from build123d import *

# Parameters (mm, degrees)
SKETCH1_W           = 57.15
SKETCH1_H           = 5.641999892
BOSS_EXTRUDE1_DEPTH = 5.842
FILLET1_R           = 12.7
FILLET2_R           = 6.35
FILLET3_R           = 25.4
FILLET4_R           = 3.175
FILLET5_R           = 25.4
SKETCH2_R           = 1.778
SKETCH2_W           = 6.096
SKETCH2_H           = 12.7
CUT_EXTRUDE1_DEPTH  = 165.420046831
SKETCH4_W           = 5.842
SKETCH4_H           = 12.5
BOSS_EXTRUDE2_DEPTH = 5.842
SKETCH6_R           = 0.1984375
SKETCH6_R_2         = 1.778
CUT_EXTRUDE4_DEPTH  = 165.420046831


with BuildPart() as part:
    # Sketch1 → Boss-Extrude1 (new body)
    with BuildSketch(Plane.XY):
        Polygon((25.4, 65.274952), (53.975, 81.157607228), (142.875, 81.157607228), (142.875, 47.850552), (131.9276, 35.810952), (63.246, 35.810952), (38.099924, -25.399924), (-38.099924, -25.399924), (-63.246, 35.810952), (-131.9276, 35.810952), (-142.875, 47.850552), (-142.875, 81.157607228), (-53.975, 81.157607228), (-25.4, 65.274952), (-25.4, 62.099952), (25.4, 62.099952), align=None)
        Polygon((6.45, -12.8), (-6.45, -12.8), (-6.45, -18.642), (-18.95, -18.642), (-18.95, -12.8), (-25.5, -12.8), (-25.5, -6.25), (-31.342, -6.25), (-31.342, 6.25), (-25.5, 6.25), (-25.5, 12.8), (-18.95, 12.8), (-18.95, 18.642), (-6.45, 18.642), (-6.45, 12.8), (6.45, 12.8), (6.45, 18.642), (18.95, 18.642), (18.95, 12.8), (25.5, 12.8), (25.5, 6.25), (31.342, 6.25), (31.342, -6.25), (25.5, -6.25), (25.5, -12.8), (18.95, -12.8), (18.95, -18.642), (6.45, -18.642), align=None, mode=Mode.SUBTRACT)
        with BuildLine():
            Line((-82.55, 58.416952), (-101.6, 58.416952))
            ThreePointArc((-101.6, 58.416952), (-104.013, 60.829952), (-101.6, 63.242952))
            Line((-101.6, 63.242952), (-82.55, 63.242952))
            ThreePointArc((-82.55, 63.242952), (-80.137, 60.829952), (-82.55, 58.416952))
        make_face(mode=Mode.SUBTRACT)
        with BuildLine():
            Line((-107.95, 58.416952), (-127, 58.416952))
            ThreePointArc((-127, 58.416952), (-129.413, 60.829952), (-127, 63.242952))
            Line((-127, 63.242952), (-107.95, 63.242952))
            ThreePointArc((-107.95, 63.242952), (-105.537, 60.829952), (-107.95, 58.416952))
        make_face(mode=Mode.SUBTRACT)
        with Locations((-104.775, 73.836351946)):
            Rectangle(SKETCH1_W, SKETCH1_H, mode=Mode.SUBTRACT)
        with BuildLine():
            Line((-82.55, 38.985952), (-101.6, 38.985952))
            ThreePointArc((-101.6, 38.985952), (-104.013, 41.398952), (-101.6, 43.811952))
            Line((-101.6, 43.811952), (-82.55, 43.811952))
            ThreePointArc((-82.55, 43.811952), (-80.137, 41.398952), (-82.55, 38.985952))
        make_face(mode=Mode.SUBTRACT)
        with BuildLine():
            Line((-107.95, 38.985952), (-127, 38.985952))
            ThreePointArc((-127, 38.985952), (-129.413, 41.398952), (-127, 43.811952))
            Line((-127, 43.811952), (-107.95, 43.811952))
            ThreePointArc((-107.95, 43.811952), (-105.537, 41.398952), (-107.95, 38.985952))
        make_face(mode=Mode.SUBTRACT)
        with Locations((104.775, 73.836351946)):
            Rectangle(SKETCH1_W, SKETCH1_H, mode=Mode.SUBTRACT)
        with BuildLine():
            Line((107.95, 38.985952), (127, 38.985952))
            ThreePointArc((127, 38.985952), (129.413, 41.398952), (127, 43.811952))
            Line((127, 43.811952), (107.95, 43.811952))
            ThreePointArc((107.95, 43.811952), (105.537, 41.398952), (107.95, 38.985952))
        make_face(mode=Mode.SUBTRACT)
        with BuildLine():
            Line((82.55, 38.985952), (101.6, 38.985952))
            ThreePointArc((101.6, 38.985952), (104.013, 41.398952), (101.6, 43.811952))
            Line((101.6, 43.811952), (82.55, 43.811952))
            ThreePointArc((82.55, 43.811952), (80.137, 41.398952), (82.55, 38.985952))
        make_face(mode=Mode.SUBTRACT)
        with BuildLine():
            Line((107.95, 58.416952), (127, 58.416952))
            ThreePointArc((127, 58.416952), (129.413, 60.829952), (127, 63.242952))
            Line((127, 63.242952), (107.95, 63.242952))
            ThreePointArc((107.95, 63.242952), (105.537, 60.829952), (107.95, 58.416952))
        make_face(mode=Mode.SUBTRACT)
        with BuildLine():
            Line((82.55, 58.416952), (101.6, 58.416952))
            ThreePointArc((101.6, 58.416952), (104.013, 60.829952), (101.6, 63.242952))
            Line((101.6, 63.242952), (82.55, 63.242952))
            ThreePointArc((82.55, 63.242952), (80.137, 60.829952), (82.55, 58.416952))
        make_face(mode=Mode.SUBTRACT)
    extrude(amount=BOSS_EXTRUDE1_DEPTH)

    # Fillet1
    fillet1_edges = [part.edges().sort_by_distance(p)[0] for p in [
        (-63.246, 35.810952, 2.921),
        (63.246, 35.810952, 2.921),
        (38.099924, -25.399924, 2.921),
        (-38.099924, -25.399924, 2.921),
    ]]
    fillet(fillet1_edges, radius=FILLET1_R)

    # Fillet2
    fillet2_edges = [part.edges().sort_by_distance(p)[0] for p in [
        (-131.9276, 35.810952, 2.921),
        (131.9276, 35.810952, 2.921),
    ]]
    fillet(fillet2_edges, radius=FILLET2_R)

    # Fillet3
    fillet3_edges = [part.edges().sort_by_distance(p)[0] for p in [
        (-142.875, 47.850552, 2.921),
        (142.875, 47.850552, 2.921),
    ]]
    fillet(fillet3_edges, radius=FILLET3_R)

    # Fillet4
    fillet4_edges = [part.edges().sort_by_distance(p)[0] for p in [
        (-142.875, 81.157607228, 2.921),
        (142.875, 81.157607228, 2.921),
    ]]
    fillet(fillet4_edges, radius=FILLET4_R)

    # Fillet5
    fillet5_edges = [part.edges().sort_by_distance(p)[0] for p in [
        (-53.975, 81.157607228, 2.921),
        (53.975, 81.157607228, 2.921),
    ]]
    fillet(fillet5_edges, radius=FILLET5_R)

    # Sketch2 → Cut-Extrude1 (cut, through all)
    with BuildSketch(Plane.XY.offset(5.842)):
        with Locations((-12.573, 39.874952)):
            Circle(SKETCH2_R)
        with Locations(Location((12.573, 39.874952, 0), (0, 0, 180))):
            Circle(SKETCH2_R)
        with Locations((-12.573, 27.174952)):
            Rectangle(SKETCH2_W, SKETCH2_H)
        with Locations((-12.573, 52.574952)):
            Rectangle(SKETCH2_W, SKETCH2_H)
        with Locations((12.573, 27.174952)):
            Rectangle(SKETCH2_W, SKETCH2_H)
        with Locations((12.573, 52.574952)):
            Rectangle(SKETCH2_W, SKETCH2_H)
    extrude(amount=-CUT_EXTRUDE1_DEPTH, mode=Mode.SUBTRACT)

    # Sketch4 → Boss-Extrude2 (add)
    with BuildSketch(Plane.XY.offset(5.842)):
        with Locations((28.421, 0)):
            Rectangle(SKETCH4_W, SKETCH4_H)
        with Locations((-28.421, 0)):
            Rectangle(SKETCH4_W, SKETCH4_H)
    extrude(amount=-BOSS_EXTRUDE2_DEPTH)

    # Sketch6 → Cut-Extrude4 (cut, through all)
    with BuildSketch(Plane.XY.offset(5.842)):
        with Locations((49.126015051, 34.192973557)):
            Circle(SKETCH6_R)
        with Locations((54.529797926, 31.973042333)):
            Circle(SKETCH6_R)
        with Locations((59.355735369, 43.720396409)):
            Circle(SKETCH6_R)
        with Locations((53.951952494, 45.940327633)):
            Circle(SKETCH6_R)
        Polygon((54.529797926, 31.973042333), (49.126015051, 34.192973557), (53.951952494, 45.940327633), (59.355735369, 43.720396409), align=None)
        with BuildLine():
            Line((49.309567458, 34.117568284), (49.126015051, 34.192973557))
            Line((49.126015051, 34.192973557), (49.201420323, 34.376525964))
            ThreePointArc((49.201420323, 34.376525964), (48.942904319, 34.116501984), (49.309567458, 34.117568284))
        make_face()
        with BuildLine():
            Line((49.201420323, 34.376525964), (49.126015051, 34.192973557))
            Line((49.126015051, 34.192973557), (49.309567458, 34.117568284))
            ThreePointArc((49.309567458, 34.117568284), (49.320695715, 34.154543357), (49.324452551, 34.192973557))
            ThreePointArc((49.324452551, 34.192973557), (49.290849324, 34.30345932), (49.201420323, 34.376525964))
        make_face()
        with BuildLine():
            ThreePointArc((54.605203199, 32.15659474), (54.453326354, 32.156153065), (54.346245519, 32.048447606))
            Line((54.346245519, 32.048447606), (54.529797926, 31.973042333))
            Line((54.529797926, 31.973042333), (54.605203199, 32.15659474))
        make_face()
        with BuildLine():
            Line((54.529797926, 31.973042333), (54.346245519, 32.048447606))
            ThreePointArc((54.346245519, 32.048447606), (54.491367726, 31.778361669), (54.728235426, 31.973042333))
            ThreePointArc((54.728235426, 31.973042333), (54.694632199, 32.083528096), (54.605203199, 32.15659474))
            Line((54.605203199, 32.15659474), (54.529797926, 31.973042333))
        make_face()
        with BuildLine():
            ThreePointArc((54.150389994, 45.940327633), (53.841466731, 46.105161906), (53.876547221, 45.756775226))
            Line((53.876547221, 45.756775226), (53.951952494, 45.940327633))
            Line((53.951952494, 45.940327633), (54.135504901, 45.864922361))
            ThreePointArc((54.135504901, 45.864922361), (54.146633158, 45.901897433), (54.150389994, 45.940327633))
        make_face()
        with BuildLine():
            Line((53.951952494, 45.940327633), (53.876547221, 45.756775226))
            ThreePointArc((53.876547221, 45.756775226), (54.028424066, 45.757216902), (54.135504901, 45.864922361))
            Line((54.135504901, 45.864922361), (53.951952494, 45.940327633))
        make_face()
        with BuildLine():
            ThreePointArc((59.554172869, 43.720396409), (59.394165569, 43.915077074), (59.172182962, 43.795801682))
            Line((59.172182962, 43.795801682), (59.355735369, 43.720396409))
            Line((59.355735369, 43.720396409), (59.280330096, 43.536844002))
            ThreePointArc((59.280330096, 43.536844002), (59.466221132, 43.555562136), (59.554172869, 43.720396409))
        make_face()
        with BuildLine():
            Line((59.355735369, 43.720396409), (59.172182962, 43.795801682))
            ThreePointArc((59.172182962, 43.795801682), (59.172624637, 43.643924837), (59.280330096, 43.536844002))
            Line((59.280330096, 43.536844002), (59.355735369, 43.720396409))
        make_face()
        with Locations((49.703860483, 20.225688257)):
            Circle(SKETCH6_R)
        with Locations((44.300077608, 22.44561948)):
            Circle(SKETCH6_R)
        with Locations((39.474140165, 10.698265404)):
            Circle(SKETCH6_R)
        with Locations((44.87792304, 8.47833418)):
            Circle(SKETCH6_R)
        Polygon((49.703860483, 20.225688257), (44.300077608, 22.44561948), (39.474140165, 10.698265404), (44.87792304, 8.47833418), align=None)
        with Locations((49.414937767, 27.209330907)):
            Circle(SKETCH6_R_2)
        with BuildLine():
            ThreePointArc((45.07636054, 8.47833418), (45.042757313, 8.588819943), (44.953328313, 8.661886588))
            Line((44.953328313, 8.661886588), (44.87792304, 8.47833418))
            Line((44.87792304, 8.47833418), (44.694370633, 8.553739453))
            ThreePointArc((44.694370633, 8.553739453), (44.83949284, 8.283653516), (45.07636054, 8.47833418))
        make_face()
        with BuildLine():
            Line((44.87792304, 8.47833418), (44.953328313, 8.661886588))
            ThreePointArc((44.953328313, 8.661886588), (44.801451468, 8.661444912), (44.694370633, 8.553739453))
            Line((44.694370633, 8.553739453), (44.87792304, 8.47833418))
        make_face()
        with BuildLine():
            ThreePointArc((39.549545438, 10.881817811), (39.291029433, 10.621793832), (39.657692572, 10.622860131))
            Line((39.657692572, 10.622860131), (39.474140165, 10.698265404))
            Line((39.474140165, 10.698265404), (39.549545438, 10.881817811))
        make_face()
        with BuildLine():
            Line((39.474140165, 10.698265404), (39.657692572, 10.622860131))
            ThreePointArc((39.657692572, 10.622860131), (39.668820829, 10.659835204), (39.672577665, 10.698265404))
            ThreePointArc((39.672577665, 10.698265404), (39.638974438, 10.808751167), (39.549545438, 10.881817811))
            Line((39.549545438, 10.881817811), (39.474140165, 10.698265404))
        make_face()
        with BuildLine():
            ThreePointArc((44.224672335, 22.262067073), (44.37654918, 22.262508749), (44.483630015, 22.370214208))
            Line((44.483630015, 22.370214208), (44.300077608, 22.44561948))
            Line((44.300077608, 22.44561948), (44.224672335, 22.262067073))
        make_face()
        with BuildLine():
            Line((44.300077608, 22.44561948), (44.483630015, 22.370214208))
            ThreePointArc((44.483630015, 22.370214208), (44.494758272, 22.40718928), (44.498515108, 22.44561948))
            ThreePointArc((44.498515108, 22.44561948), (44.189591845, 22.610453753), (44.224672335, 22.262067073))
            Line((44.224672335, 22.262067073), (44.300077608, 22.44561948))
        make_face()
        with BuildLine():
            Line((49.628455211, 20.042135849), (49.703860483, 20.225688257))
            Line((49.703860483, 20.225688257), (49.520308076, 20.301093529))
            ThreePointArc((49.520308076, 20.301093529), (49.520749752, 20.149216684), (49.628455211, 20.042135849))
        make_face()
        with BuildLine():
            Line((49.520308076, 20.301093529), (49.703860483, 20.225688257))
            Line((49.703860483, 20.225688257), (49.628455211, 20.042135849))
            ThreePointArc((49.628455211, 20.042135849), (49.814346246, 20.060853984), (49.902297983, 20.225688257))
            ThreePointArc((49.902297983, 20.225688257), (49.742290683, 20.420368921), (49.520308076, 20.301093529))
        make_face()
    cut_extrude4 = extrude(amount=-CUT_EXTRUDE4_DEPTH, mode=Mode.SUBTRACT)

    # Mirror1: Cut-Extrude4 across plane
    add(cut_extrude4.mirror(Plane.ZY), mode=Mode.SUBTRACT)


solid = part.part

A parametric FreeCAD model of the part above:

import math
import FreeCAD as App
import Part
import Sketcher
Q = App.Units.Quantity


def edges_at(feature, points):
    """Names of the edges that pass closest to the given points."""
    edges = feature.Shape.Edges
    near = lambda p: min(range(len(edges)), key=lambda i: edges[i].distToShape(Part.Vertex(*p))[0])
    return sorted({f"Edge{near(p) + 1}" for p in points})

doc = App.newDocument("Part")
params = doc.addObject("Spreadsheet::Sheet", "Params")
for row, (alias, value) in enumerate([
    ("sketch1_width", "2 in"),
    ("sketch1_width2", "3.5 in"),
    ("sketch1_radius", "0.095 in"),
    ("sketch1_width3", "0.23 in"),
    ("sketch1_width4", "0.75 in"),
    ("pad1_length", "0.23 in"),
    ("fillet_radius", "0.5 in"),
    ("fillet2_radius", "0.25 in"),
    ("fillet3_radius", "1 in"),
    ("fillet4_radius", "0.125 in"),
    ("fillet5_radius", "1 in"),
    ("sketch2_diameter", "0.14 in"),
    ("sketch2_height", "0.5 in"),
    ("sketch2_width", "0.24 in"),
    ("sketch3_width", "0.23 in"),
    ("pad2_length", "0.23 in"),
    ("sketch4_diameter", "0.14 in"),
    ("sketch4_length", "0.484375 in"),
], start=1):
    params.set(f"A{row}", alias)
    params.set(f"B{row}", "=" + value)
    params.setAlias(f"B{row}", alias)

body = doc.addObject("PartDesign::Body", "Body")

sketch1 = body.newObject("Sketcher::SketchObject", "Sketch")
sketch1.AttachmentSupport = (doc.getObject("XY_Plane"), [""])
sketch1.MapMode = "FlatFace"
sketch1.addGeometry([
    Part.LineSegment(App.Vector(54, 81.2, 0), App.Vector(25.4, 65.3, 0)),
    Part.LineSegment(App.Vector(25.4, 65.3, 0), App.Vector(25.4, 62.1, 0)),
    Part.LineSegment(App.Vector(25.4, 62.1, 0), App.Vector(-25.4, 62.1, 0)),
    Part.LineSegment(App.Vector(-25.4, 62.1, 0), App.Vector(-25.4, 65.3, 0)),
    Part.LineSegment(App.Vector(-25.4, 65.3, 0), App.Vector(-54, 81.2, 0)),
    Part.LineSegment(App.Vector(-54, 81.2, 0), App.Vector(-142.9, 81.2, 0)),
    Part.LineSegment(App.Vector(-142.9, 81.2, 0), App.Vector(-142.9, 47.9, 0)),
    Part.LineSegment(App.Vector(-142.9, 47.9, 0), App.Vector(-131.9, 35.8, 0)),
    Part.LineSegment(App.Vector(-131.9, 35.8, 0), App.Vector(-63.2, 35.8, 0)),
    Part.LineSegment(App.Vector(-63.2, 35.8, 0), App.Vector(-38.1, -25.4, 0)),
    Part.LineSegment(App.Vector(-38.1, -25.4, 0), App.Vector(38.1, -25.4, 0)),
    Part.LineSegment(App.Vector(38.1, -25.4, 0), App.Vector(63.2, 35.8, 0)),
    Part.LineSegment(App.Vector(63.2, 35.8, 0), App.Vector(131.9, 35.8, 0)),
    Part.LineSegment(App.Vector(131.9, 35.8, 0), App.Vector(142.9, 47.9, 0)),
    Part.LineSegment(App.Vector(142.9, 47.9, 0), App.Vector(142.9, 81.2, 0)),
    Part.LineSegment(App.Vector(142.9, 81.2, 0), App.Vector(54, 81.2, 0)),
    Part.LineSegment(App.Vector(6.5, -12.8, 0), App.Vector(-6.5, -12.8, 0)),
    Part.LineSegment(App.Vector(-6.5, -12.8, 0), App.Vector(-6.5, -18.6, 0)),
    Part.LineSegment(App.Vector(-6.5, -18.6, 0), App.Vector(-18.9, -18.6, 0)),
    Part.LineSegment(App.Vector(-18.9, -18.6, 0), App.Vector(-18.9, -12.8, 0)),
    Part.LineSegment(App.Vector(-18.9, -12.8, 0), App.Vector(-25.5, -12.8, 0)),
    Part.LineSegment(App.Vector(-25.5, -12.8, 0), App.Vector(-25.5, -6.2, 0)),
    Part.LineSegment(App.Vector(-25.5, -6.2, 0), App.Vector(-31.3, -6.2, 0)),
    Part.LineSegment(App.Vector(-31.3, -6.2, 0), App.Vector(-31.3, 6.2, 0)),
    Part.LineSegment(App.Vector(-31.3, 6.2, 0), App.Vector(-25.5, 6.2, 0)),
    Part.LineSegment(App.Vector(-25.5, 6.2, 0), App.Vector(-25.5, 12.8, 0)),
    Part.LineSegment(App.Vector(-25.5, 12.8, 0), App.Vector(-18.9, 12.8, 0)),
    Part.LineSegment(App.Vector(-18.9, 12.8, 0), App.Vector(-18.9, 18.6, 0)),
    Part.LineSegment(App.Vector(-18.9, 18.6, 0), App.Vector(-6.5, 18.6, 0)),
    Part.LineSegment(App.Vector(-6.5, 18.6, 0), App.Vector(-6.5, 12.8, 0)),
    Part.LineSegment(App.Vector(-6.5, 12.8, 0), App.Vector(6.5, 12.8, 0)),
    Part.LineSegment(App.Vector(6.5, 12.8, 0), App.Vector(6.5, 18.6, 0)),
    Part.LineSegment(App.Vector(6.5, 18.6, 0), App.Vector(18.9, 18.6, 0)),
    Part.LineSegment(App.Vector(18.9, 18.6, 0), App.Vector(18.9, 12.8, 0)),
    Part.LineSegment(App.Vector(18.9, 12.8, 0), App.Vector(25.5, 12.8, 0)),
    Part.LineSegment(App.Vector(25.5, 12.8, 0), App.Vector(25.5, 6.2, 0)),
    Part.LineSegment(App.Vector(25.5, 6.2, 0), App.Vector(31.3, 6.2, 0)),
    Part.LineSegment(App.Vector(31.3, 6.2, 0), App.Vector(31.3, -6.2, 0)),
    Part.LineSegment(App.Vector(31.3, -6.2, 0), App.Vector(25.5, -6.2, 0)),
    Part.LineSegment(App.Vector(25.5, -6.2, 0), App.Vector(25.5, -12.8, 0)),
    Part.LineSegment(App.Vector(25.5, -12.8, 0), App.Vector(18.9, -12.8, 0)),
    Part.LineSegment(App.Vector(18.9, -12.8, 0), App.Vector(18.9, -18.6, 0)),
    Part.LineSegment(App.Vector(18.9, -18.6, 0), App.Vector(6.5, -18.6, 0)),
    Part.LineSegment(App.Vector(6.5, -18.6, 0), App.Vector(6.5, -12.8, 0)),
    Part.ArcOfCircle(Part.Circle(App.Vector(108, 41.4, 0), App.Vector(0, 0, 1), 2.4), math.radians(90), math.radians(270)),
    Part.LineSegment(App.Vector(108, 43.8, 0), App.Vector(127, 43.8, 0)),
    Part.ArcOfCircle(Part.Circle(App.Vector(127, 41.4, 0), App.Vector(0, 0, 1), 2.4), math.radians(-90), math.radians(90)),
    Part.LineSegment(App.Vector(127, 39, 0), App.Vector(108, 39, 0)),
    Part.ArcOfCircle(Part.Circle(App.Vector(82.5, 41.4, 0), App.Vector(0, 0, 1), 2.4), math.radians(90), math.radians(270)),
    Part.LineSegment(App.Vector(82.5, 43.8, 0), App.Vector(101.6, 43.8, 0)),
    Part.ArcOfCircle(Part.Circle(App.Vector(101.6, 41.4, 0), App.Vector(0, 0, 1), 2.4), math.radians(-90), math.radians(90)),
    Part.LineSegment(App.Vector(101.6, 39, 0), App.Vector(82.5, 39, 0)),
    Part.ArcOfCircle(Part.Circle(App.Vector(108, 60.8, 0), App.Vector(0, 0, 1), 2.4), math.radians(90), math.radians(270)),
    Part.LineSegment(App.Vector(108, 63.2, 0), App.Vector(127, 63.2, 0)),
    Part.ArcOfCircle(Part.Circle(App.Vector(127, 60.8, 0), App.Vector(0, 0, 1), 2.4), math.radians(-90), math.radians(90)),
    Part.LineSegment(App.Vector(127, 58.4, 0), App.Vector(108, 58.4, 0)),
    Part.ArcOfCircle(Part.Circle(App.Vector(82.5, 60.8, 0), App.Vector(0, 0, 1), 2.4), math.radians(90), math.radians(270)),
    Part.LineSegment(App.Vector(82.5, 63.2, 0), App.Vector(101.6, 63.2, 0)),
    Part.ArcOfCircle(Part.Circle(App.Vector(101.6, 60.8, 0), App.Vector(0, 0, 1), 2.4), math.radians(-90), math.radians(90)),
    Part.LineSegment(App.Vector(101.6, 58.4, 0), App.Vector(82.5, 58.4, 0)),
    Part.LineSegment(App.Vector(76.2, 71, 0), App.Vector(76.2, 76.7, 0)),
    Part.LineSegment(App.Vector(76.2, 76.7, 0), App.Vector(133.3, 76.7, 0)),
    Part.LineSegment(App.Vector(133.3, 76.7, 0), App.Vector(133.3, 71, 0)),
    Part.LineSegment(App.Vector(133.3, 71, 0), App.Vector(76.2, 71, 0)),
    Part.LineSegment(App.Vector(-82.5, 39, 0), App.Vector(-101.6, 39, 0)),
    Part.ArcOfCircle(Part.Circle(App.Vector(-101.6, 41.4, 0), App.Vector(0, 0, 1), 2.4), math.radians(90), math.radians(270)),
    Part.LineSegment(App.Vector(-101.6, 43.8, 0), App.Vector(-82.5, 43.8, 0)),
    Part.ArcOfCircle(Part.Circle(App.Vector(-82.5, 41.4, 0), App.Vector(0, 0, 1), 2.4), math.radians(-90), math.radians(90)),
    Part.LineSegment(App.Vector(-108, 39, 0), App.Vector(-127, 39, 0)),
    Part.ArcOfCircle(Part.Circle(App.Vector(-127, 41.4, 0), App.Vector(0, 0, 1), 2.4), math.radians(90), math.radians(270)),
    Part.LineSegment(App.Vector(-127, 43.8, 0), App.Vector(-108, 43.8, 0)),
    Part.ArcOfCircle(Part.Circle(App.Vector(-108, 41.4, 0), App.Vector(0, 0, 1), 2.4), math.radians(-90), math.radians(90)),
    Part.LineSegment(App.Vector(-82.5, 58.4, 0), App.Vector(-101.6, 58.4, 0)),
    Part.ArcOfCircle(Part.Circle(App.Vector(-101.6, 60.8, 0), App.Vector(0, 0, 1), 2.4), math.radians(90), math.radians(270)),
    Part.LineSegment(App.Vector(-101.6, 63.2, 0), App.Vector(-82.5, 63.2, 0)),
    Part.ArcOfCircle(Part.Circle(App.Vector(-82.5, 60.8, 0), App.Vector(0, 0, 1), 2.4), math.radians(-90), math.radians(90)),
    Part.LineSegment(App.Vector(-108, 58.4, 0), App.Vector(-127, 58.4, 0)),
    Part.ArcOfCircle(Part.Circle(App.Vector(-127, 60.8, 0), App.Vector(0, 0, 1), 2.4), math.radians(90), math.radians(270)),
    Part.LineSegment(App.Vector(-127, 63.2, 0), App.Vector(-108, 63.2, 0)),
    Part.ArcOfCircle(Part.Circle(App.Vector(-108, 60.8, 0), App.Vector(0, 0, 1), 2.4), math.radians(-90), math.radians(90)),
    Part.LineSegment(App.Vector(-133.3, 71, 0), App.Vector(-133.3, 76.7, 0)),
    Part.LineSegment(App.Vector(-133.3, 76.7, 0), App.Vector(-76.2, 76.7, 0)),
    Part.LineSegment(App.Vector(-76.2, 76.7, 0), App.Vector(-76.2, 71, 0)),
    Part.LineSegment(App.Vector(-76.2, 71, 0), App.Vector(-133.3, 71, 0)),
], False)
sketch1.addConstraint([
    Sketcher.Constraint("Coincident", 0, 2, 1, 1),
    Sketcher.Constraint("Coincident", 1, 2, 2, 1),
    Sketcher.Constraint("Coincident", 2, 2, 3, 1),
    Sketcher.Constraint("Coincident", 3, 2, 4, 1),
    Sketcher.Constraint("Coincident", 4, 2, 5, 1),
    Sketcher.Constraint("Coincident", 5, 2, 6, 1),
    Sketcher.Constraint("Coincident", 6, 2, 7, 1),
    Sketcher.Constraint("Coincident", 7, 2, 8, 1),
    Sketcher.Constraint("Coincident", 8, 2, 9, 1),
    Sketcher.Constraint("Coincident", 9, 2, 10, 1),
    Sketcher.Constraint("Coincident", 10, 2, 11, 1),
    Sketcher.Constraint("Coincident", 11, 2, 12, 1),
    Sketcher.Constraint("Coincident", 12, 2, 13, 1),
    Sketcher.Constraint("Coincident", 13, 2, 14, 1),
    Sketcher.Constraint("Coincident", 14, 2, 15, 1),
    Sketcher.Constraint("Coincident", 15, 2, 0, 1),
    Sketcher.Constraint("Coincident", 16, 2, 17, 1),
    Sketcher.Constraint("Coincident", 17, 2, 18, 1),
    Sketcher.Constraint("Coincident", 18, 2, 19, 1),
    Sketcher.Constraint("Coincident", 19, 2, 20, 1),
    Sketcher.Constraint("Coincident", 20, 2, 21, 1),
    Sketcher.Constraint("Coincident", 21, 2, 22, 1),
    Sketcher.Constraint("Coincident", 22, 2, 23, 1),
    Sketcher.Constraint("Coincident", 23, 2, 24, 1),
    Sketcher.Constraint("Coincident", 24, 2, 25, 1),
    Sketcher.Constraint("Coincident", 25, 2, 26, 1),
    Sketcher.Constraint("Coincident", 26, 2, 27, 1),
    Sketcher.Constraint("Coincident", 27, 2, 28, 1),
    Sketcher.Constraint("Coincident", 28, 2, 29, 1),
    Sketcher.Constraint("Coincident", 29, 2, 30, 1),
    Sketcher.Constraint("Coincident", 30, 2, 31, 1),
    Sketcher.Constraint("Coincident", 31, 2, 32, 1),
    Sketcher.Constraint("Coincident", 32, 2, 33, 1),
    Sketcher.Constraint("Coincident", 33, 2, 34, 1),
    Sketcher.Constraint("Coincident", 34, 2, 35, 1),
    Sketcher.Constraint("Coincident", 35, 2, 36, 1),
    Sketcher.Constraint("Coincident", 36, 2, 37, 1),
    Sketcher.Constraint("Coincident", 37, 2, 38, 1),
    Sketcher.Constraint("Coincident", 38, 2, 39, 1),
    Sketcher.Constraint("Coincident", 39, 2, 40, 1),
    Sketcher.Constraint("Coincident", 40, 2, 41, 1),
    Sketcher.Constraint("Coincident", 41, 2, 42, 1),
    Sketcher.Constraint("Coincident", 42, 2, 43, 1),
    Sketcher.Constraint("Coincident", 43, 2, 16, 1),
    Sketcher.Constraint("Tangent", 44, 1, 45, 1),
    Sketcher.Constraint("Tangent", 45, 2, 46, 2),
    Sketcher.Constraint("Tangent", 46, 1, 47, 1),
    Sketcher.Constraint("Tangent", 47, 2, 44, 2),
    Sketcher.Constraint("Tangent", 48, 1, 49, 1),
    Sketcher.Constraint("Tangent", 49, 2, 50, 2),
    Sketcher.Constraint("Tangent", 50, 1, 51, 1),
    Sketcher.Constraint("Tangent", 51, 2, 48, 2),
    Sketcher.Constraint("Tangent", 52, 1, 53, 1),
    Sketcher.Constraint("Tangent", 53, 2, 54, 2),
    Sketcher.Constraint("Tangent", 54, 1, 55, 1),
    Sketcher.Constraint("Tangent", 55, 2, 52, 2),
    Sketcher.Constraint("Tangent", 56, 1, 57, 1),
    Sketcher.Constraint("Tangent", 57, 2, 58, 2),
    Sketcher.Constraint("Tangent", 58, 1, 59, 1),
    Sketcher.Constraint("Tangent", 59, 2, 56, 2),
    Sketcher.Constraint("Coincident", 60, 2, 61, 1),
    Sketcher.Constraint("Coincident", 61, 2, 62, 1),
    Sketcher.Constraint("Coincident", 62, 2, 63, 1),
    Sketcher.Constraint("Coincident", 63, 2, 60, 1),
    Sketcher.Constraint("Tangent", 64, 2, 65, 2),
    Sketcher.Constraint("Tangent", 65, 1, 66, 1),
    Sketcher.Constraint("Tangent", 66, 2, 67, 2),
    Sketcher.Constraint("Tangent", 67, 1, 64, 1),
    Sketcher.Constraint("Tangent", 68, 2, 69, 2),
    Sketcher.Constraint("Tangent", 69, 1, 70, 1),
    Sketcher.Constraint("Tangent", 70, 2, 71, 2),
    Sketcher.Constraint("Tangent", 71, 1, 68, 1),
    Sketcher.Constraint("Tangent", 72, 2, 73, 2),
    Sketcher.Constraint("Tangent", 73, 1, 74, 1),
    Sketcher.Constraint("Tangent", 74, 2, 75, 2),
    Sketcher.Constraint("Tangent", 75, 1, 72, 1),
    Sketcher.Constraint("Tangent", 76, 2, 77, 2),
    Sketcher.Constraint("Tangent", 77, 1, 78, 1),
    Sketcher.Constraint("Tangent", 78, 2, 79, 2),
    Sketcher.Constraint("Tangent", 79, 1, 76, 1),
    Sketcher.Constraint("Coincident", 80, 2, 81, 1),
    Sketcher.Constraint("Coincident", 81, 2, 82, 1),
    Sketcher.Constraint("Coincident", 82, 2, 83, 1),
    Sketcher.Constraint("Coincident", 83, 2, 80, 1),
    Sketcher.Constraint("Vertical", 1),
    Sketcher.Constraint("Horizontal", 2),
    Sketcher.Constraint("Vertical", 3),
    Sketcher.Constraint("Horizontal", 5),
    Sketcher.Constraint("Vertical", 6),
    Sketcher.Constraint("Horizontal", 8),
    Sketcher.Constraint("Horizontal", 10),
    Sketcher.Constraint("Horizontal", 12),
    Sketcher.Constraint("Vertical", 14),
    Sketcher.Constraint("Horizontal", 15),
    Sketcher.Constraint("Horizontal", 16),
    Sketcher.Constraint("Vertical", 17),
    Sketcher.Constraint("Horizontal", 18),
    Sketcher.Constraint("Vertical", 19),
    Sketcher.Constraint("Horizontal", 20),
    Sketcher.Constraint("Vertical", 21),
    Sketcher.Constraint("Horizontal", 22),
    Sketcher.Constraint("Vertical", 23),
    Sketcher.Constraint("Horizontal", 24),
    Sketcher.Constraint("Vertical", 25),
    Sketcher.Constraint("Horizontal", 26),
    Sketcher.Constraint("Vertical", 27),
    Sketcher.Constraint("Horizontal", 28),
    Sketcher.Constraint("Vertical", 29),
    Sketcher.Constraint("Horizontal", 30),
    Sketcher.Constraint("Vertical", 31),
    Sketcher.Constraint("Horizontal", 32),
    Sketcher.Constraint("Vertical", 33),
    Sketcher.Constraint("Horizontal", 34),
    Sketcher.Constraint("Vertical", 35),
    Sketcher.Constraint("Horizontal", 36),
    Sketcher.Constraint("Vertical", 37),
    Sketcher.Constraint("Horizontal", 38),
    Sketcher.Constraint("Vertical", 39),
    Sketcher.Constraint("Horizontal", 40),
    Sketcher.Constraint("Vertical", 41),
    Sketcher.Constraint("Horizontal", 42),
    Sketcher.Constraint("Vertical", 43),
    Sketcher.Constraint("Horizontal", 45),
    Sketcher.Constraint("Horizontal", 47),
    Sketcher.Constraint("Horizontal", 49),
    Sketcher.Constraint("Horizontal", 51),
    Sketcher.Constraint("Horizontal", 53),
    Sketcher.Constraint("Horizontal", 55),
    Sketcher.Constraint("Horizontal", 57),
    Sketcher.Constraint("Horizontal", 59),
    Sketcher.Constraint("Vertical", 60),
    Sketcher.Constraint("Horizontal", 61),
    Sketcher.Constraint("Vertical", 62),
    Sketcher.Constraint("Horizontal", 63),
    Sketcher.Constraint("Horizontal", 64),
    Sketcher.Constraint("Horizontal", 66),
    Sketcher.Constraint("Horizontal", 68),
    Sketcher.Constraint("Horizontal", 70),
    Sketcher.Constraint("Horizontal", 72),
    Sketcher.Constraint("Horizontal", 74),
    Sketcher.Constraint("Horizontal", 76),
    Sketcher.Constraint("Horizontal", 78),
    Sketcher.Constraint("Vertical", 80),
    Sketcher.Constraint("Horizontal", 81),
    Sketcher.Constraint("Vertical", 82),
    Sketcher.Constraint("Horizontal", 83),
    Sketcher.Constraint("Equal", 46, 48),
    Sketcher.Constraint("Equal", 50, 52),
    Sketcher.Constraint("Equal", 54, 56),
    Sketcher.Constraint("Equal", 58, 65),
    Sketcher.Constraint("Equal", 67, 69),
    Sketcher.Constraint("Equal", 71, 73),
    Sketcher.Constraint("Equal", 75, 77),
    Sketcher.Constraint("Symmetric", 16, 2, 30, 2, -1, 1),
    Sketcher.Constraint("Symmetric", 18, 2, 32, 2, -1, 1),
    Sketcher.Constraint("Symmetric", 20, 2, 34, 2, -1, 1),
    Sketcher.Constraint("Symmetric", 22, 2, 36, 2, -1, 1),
    Sketcher.Constraint("Symmetric", 24, 2, 38, 2, -1, 1),
    Sketcher.Constraint("Symmetric", 26, 2, 40, 2, -1, 1),
    Sketcher.Constraint("Symmetric", 28, 2, 42, 2, -1, 1),
    Sketcher.Constraint("Symmetric", 50, 3, 65, 3, -2),
    Sketcher.Constraint("Symmetric", 46, 3, 69, 3, -2),
    Sketcher.Constraint("Symmetric", 58, 3, 73, 3, -2),
    Sketcher.Constraint("Symmetric", 54, 3, 77, 3, -2),
    Sketcher.Constraint("Symmetric", 0, 2, 3, 2, -2),
    Sketcher.Constraint("Symmetric", 8, 2, 11, 2, -2),
    Sketcher.Constraint("Symmetric", 6, 2, 13, 2, -2),
    Sketcher.Constraint("Symmetric", 4, 2, 15, 2, -2),
    Sketcher.Constraint("Symmetric", 28, 2, 31, 2, -2),
    Sketcher.Constraint("Symmetric", 26, 2, 33, 2, -2),
    Sketcher.Constraint("Symmetric", 24, 2, 35, 2, -2),
    Sketcher.Constraint("Symmetric", 61, 2, 80, 2, -2),
    Sketcher.Constraint("Symmetric", 63, 2, 82, 2, -2),
    Sketcher.Constraint("Horizontal", 46, 3, 48, 3),
    Sketcher.Constraint("Horizontal", 54, 3, 56, 3),
    Sketcher.Constraint("Horizontal", 16, 2, 19, 2),
    Sketcher.Constraint("Vertical", 44, 3, 52, 3),
    Sketcher.Constraint("Vertical", 46, 3, 54, 3),
    Sketcher.Constraint("Vertical", 48, 3, 56, 3),
    Sketcher.Constraint("Vertical", 50, 3, 58, 3),
    Sketcher.Constraint("Vertical", 67, 3, 75, 3),
    Sketcher.Constraint("Vertical", 71, 3, 79, 3),
    Sketcher.Constraint("Equal", 8, 12),
    Sketcher.Constraint("Equal", 47, 49),
    Sketcher.Constraint("Equal", 59, 64),
    Sketcher.Constraint("Equal", 66, 68),
    Sketcher.Constraint("Equal", 38, 17),
    Sketcher.Constraint("Equal", 40, 21),
    Sketcher.Constraint("Equal", 42, 23),
    Sketcher.Constraint("Equal", 9, 11),
    Sketcher.Constraint("DistanceX", 2, 2, 2, 1, Q("2 in")),
    Sketcher.Constraint("DistanceX", 5, 2, 5, 1, Q("3.5 in")),
    Sketcher.Constraint("DistanceX", -1, 1, 46, 3, Q("5 in")),
    Sketcher.Constraint("DistanceX", -1, 1, 50, 3, Q("4 in")),
    Sketcher.Constraint("DistanceX", -1, 1, 60, 2, Q("3 in")),
    Sketcher.Constraint("Radius", 44, Q("0.095 in")),
    Sketcher.Constraint("DistanceX", 22, 2, 22, 1, Q("0.23 in")),
    Sketcher.Constraint("DistanceX", 45, 1, 45, 2, Q("0.75 in")),
    Sketcher.Constraint("DistanceX", 61, 1, 61, 2, Q("2.25 in")),
    Sketcher.Constraint("DistanceX", 8, 1, 8, 2, Q("2.704 in")),
    Sketcher.Constraint("DistanceY", 1, 2, 1, 1, Q("0.125 in")),
    Sketcher.Constraint("DistanceX", 8, 2, -1, 1, Q("2.49 in")),
    Sketcher.Constraint("DistanceX", 4, 2, -1, 1, Q("2.125 in")),
    Sketcher.Constraint("Distance", 0, Q("1.2871002 in")),
    Sketcher.Constraint("DistanceX", 16, 2, 16, 1, 12.9),
    Sketcher.Constraint("DistanceX", 18, 2, 18, 1, 12.5),
    Sketcher.Constraint("DistanceX", 20, 2, 20, 1, 6.55),
    Sketcher.Constraint("DistanceY", 60, 1, 60, 2, 5.642),
    Sketcher.Constraint("Distance", 7, 16.272601),
    Sketcher.Constraint("DistanceX", 10, 1, 10, 2, 76.199848),
    Sketcher.Constraint("DistanceY", 6, 2, 6, 1, 33.307055),
    Sketcher.Constraint("DistanceY", -1, 1, 0, 2, 65.274952),
    Sketcher.Constraint("DistanceY", -1, 1, 44, 1, 43.811952),
    Sketcher.Constraint("DistanceY", -1, 1, 52, 1, 63.242952),
    Sketcher.Constraint("DistanceY", -1, 1, 60, 2, 76.657352),
    Sketcher.Constraint("Distance", 9, 66.174742),
])
sketch1.setExpression("Constraints[190]", "Params.sketch1_width")
sketch1.setExpression("Constraints[191]", "Params.sketch1_width2")
sketch1.setExpression("Constraints[195]", "Params.sketch1_radius")
sketch1.setExpression("Constraints[196]", "Params.sketch1_width3")
sketch1.setExpression("Constraints[197]", "Params.sketch1_width4")
pad1 = body.newObject("PartDesign::Pad", "Pad")
pad1.Profile = sketch1
pad1.setExpression("Length", "Params.pad1_length")
doc.recompute()

fillet = body.newObject("PartDesign::Fillet", "Fillet")
fillet.Base = (pad1, edges_at(pad1, [
    (-63.246, 35.811, 2.921),
    (63.246, 35.811, 2.921),
    (38.1, -25.4, 2.921),
    (-38.1, -25.4, 2.921),
]))
fillet.setExpression("Radius", "Params.fillet_radius")
doc.recompute()

fillet2 = body.newObject("PartDesign::Fillet", "Fillet001")
fillet2.Base = (fillet, edges_at(fillet, [(-131.928, 35.811, 2.921), (131.928, 35.811, 2.921)]))
fillet2.setExpression("Radius", "Params.fillet2_radius")
doc.recompute()

fillet3 = body.newObject("PartDesign::Fillet", "Fillet002")
fillet3.Base = (fillet2, edges_at(fillet2, [(-142.875, 47.851, 2.921), (142.875, 47.851, 2.921)]))
fillet3.setExpression("Radius", "Params.fillet3_radius")
doc.recompute()

fillet4 = body.newObject("PartDesign::Fillet", "Fillet003")
fillet4.Base = (fillet3, edges_at(fillet3, [(-142.875, 81.158, 2.921), (142.875, 81.158, 2.921)]))
fillet4.setExpression("Radius", "Params.fillet4_radius")
doc.recompute()

fillet5 = body.newObject("PartDesign::Fillet", "Fillet004")
fillet5.Base = (fillet4, edges_at(fillet4, [(-53.975, 81.158, 2.921), (53.975, 81.158, 2.921)]))
fillet5.setExpression("Radius", "Params.fillet5_radius")

sketch2 = body.newObject("Sketcher::SketchObject", "Sketch001")
sketch2.AttachmentSupport = (doc.getObject("XY_Plane"), [""])
sketch2.MapMode = "FlatFace"
sketch2.AttachmentOffset = App.Placement(App.Vector(0, 0, 0.23 * 25.4), App.Rotation())
sketch2.addGeometry([
    Part.Circle(App.Vector(-12.6, 39.9, 0), App.Vector(0, 0, 1), 1.8),
    Part.Circle(App.Vector(12.6, 39.9, 0), App.Vector(0, 0, 1), 1.8),
    Part.LineSegment(App.Vector(-15.6, 33.5, 0), App.Vector(-15.6, 20.8, 0)),
    Part.LineSegment(App.Vector(-15.6, 20.8, 0), App.Vector(-9.5, 20.8, 0)),
    Part.LineSegment(App.Vector(-9.5, 20.8, 0), App.Vector(-9.5, 33.5, 0)),
    Part.LineSegment(App.Vector(-9.5, 33.5, 0), App.Vector(-15.6, 33.5, 0)),
    Part.LineSegment(App.Vector(-15.6, 58.9, 0), App.Vector(-15.6, 46.2, 0)),
    Part.LineSegment(App.Vector(-15.6, 46.2, 0), App.Vector(-9.5, 46.2, 0)),
    Part.LineSegment(App.Vector(-9.5, 46.2, 0), App.Vector(-9.5, 58.9, 0)),
    Part.LineSegment(App.Vector(-9.5, 58.9, 0), App.Vector(-15.6, 58.9, 0)),
    Part.LineSegment(App.Vector(9.5, 33.5, 0), App.Vector(9.5, 20.8, 0)),
    Part.LineSegment(App.Vector(9.5, 20.8, 0), App.Vector(15.6, 20.8, 0)),
    Part.LineSegment(App.Vector(15.6, 20.8, 0), App.Vector(15.6, 33.5, 0)),
    Part.LineSegment(App.Vector(15.6, 33.5, 0), App.Vector(9.5, 33.5, 0)),
    Part.LineSegment(App.Vector(9.5, 58.9, 0), App.Vector(9.5, 46.2, 0)),
    Part.LineSegment(App.Vector(9.5, 46.2, 0), App.Vector(15.6, 46.2, 0)),
    Part.LineSegment(App.Vector(15.6, 46.2, 0), App.Vector(15.6, 58.9, 0)),
    Part.LineSegment(App.Vector(15.6, 58.9, 0), App.Vector(9.5, 58.9, 0)),
], False)
sketch2.addConstraint([
    Sketcher.Constraint("Coincident", 2, 2, 3, 1),
    Sketcher.Constraint("Coincident", 3, 2, 4, 1),
    Sketcher.Constraint("Coincident", 4, 2, 5, 1),
    Sketcher.Constraint("Coincident", 5, 2, 2, 1),
    Sketcher.Constraint("Coincident", 6, 2, 7, 1),
    Sketcher.Constraint("Coincident", 7, 2, 8, 1),
    Sketcher.Constraint("Coincident", 8, 2, 9, 1),
    Sketcher.Constraint("Coincident", 9, 2, 6, 1),
    Sketcher.Constraint("Coincident", 10, 2, 11, 1),
    Sketcher.Constraint("Coincident", 11, 2, 12, 1),
    Sketcher.Constraint("Coincident", 12, 2, 13, 1),
    Sketcher.Constraint("Coincident", 13, 2, 10, 1),
    Sketcher.Constraint("Coincident", 14, 2, 15, 1),
    Sketcher.Constraint("Coincident", 15, 2, 16, 1),
    Sketcher.Constraint("Coincident", 16, 2, 17, 1),
    Sketcher.Constraint("Coincident", 17, 2, 14, 1),
    Sketcher.Constraint("Vertical", 2),
    Sketcher.Constraint("Horizontal", 3),
    Sketcher.Constraint("Vertical", 4),
    Sketcher.Constraint("Horizontal", 5),
    Sketcher.Constraint("Vertical", 6),
    Sketcher.Constraint("Horizontal", 7),
    Sketcher.Constraint("Vertical", 8),
    Sketcher.Constraint("Horizontal", 9),
    Sketcher.Constraint("Vertical", 10),
    Sketcher.Constraint("Horizontal", 11),
    Sketcher.Constraint("Vertical", 12),
    Sketcher.Constraint("Horizontal", 13),
    Sketcher.Constraint("Vertical", 14),
    Sketcher.Constraint("Horizontal", 15),
    Sketcher.Constraint("Vertical", 16),
    Sketcher.Constraint("Horizontal", 17),
    Sketcher.Constraint("Equal", 0, 1),
    Sketcher.Constraint("Symmetric", 0, 3, 1, 3, -2),
    Sketcher.Constraint("Symmetric", 3, 2, 10, 2, -2),
    Sketcher.Constraint("Symmetric", 5, 2, 12, 2, -2),
    Sketcher.Constraint("Symmetric", 7, 2, 14, 2, -2),
    Sketcher.Constraint("Symmetric", 9, 2, 16, 2, -2),
    Sketcher.Constraint("Vertical", 5, 2, 6, 2),
    Sketcher.Constraint("Vertical", 4, 2, 7, 2),
    Sketcher.Constraint("Equal", 4, 6),
    Sketcher.Constraint("Diameter", 0, Q("0.14 in")),
    Sketcher.Constraint("DistanceY", 2, 2, 2, 1, Q("0.5 in")),
    Sketcher.Constraint("DistanceY", 2, 2, 6, 2, Q("1 in")),
    Sketcher.Constraint("DistanceX", 3, 1, 3, 2, Q("0.24 in")),
    Sketcher.Constraint("DistanceX", 0, 3, 1, 3, Q("0.99 in")),
    Sketcher.Constraint("DistanceX", 2, 2, 0, 3, Q("0.12 in")),
    Sketcher.Constraint("DistanceY", 2, 2, 0, 3, Q("0.75 in")),
    Sketcher.Constraint("DistanceY", -1, 1, 2, 2, 20.824952),
])
sketch2.setExpression("Constraints[41]", "Params.sketch2_diameter")
sketch2.setExpression("Constraints[42]", "Params.sketch2_height")
sketch2.setExpression("Constraints[44]", "Params.sketch2_width")
pocket1 = body.newObject("PartDesign::Pocket", "Pocket")
pocket1.Profile = sketch2
pocket1.Type = "ThroughAll"

sketch3 = body.newObject("Sketcher::SketchObject", "Sketch002")
sketch3.AttachmentSupport = (doc.getObject("XY_Plane"), [""])
sketch3.MapMode = "FlatFace"
sketch3.AttachmentOffset = App.Placement(App.Vector(0, 0, 0.23 * 25.4), App.Rotation())
sketch3.addGeometry([
    Part.LineSegment(App.Vector(26, 6, 0), App.Vector(26, -6, 0)),
    Part.LineSegment(App.Vector(26, -6, 0), App.Vector(31, -6, 0)),
    Part.LineSegment(App.Vector(31, -6, 0), App.Vector(31, 6, 0)),
    Part.LineSegment(App.Vector(31, 6, 0), App.Vector(26, 6, 0)),
    Part.LineSegment(App.Vector(-31, 6, 0), App.Vector(-31, -6, 0)),
    Part.LineSegment(App.Vector(-31, -6, 0), App.Vector(-26, -6, 0)),
    Part.LineSegment(App.Vector(-26, -6, 0), App.Vector(-26, 6, 0)),
    Part.LineSegment(App.Vector(-26, 6, 0), App.Vector(-31, 6, 0)),
], False)
sketch3.addConstraint([
    Sketcher.Constraint("Coincident", 0, 2, 1, 1),
    Sketcher.Constraint("Coincident", 1, 2, 2, 1),
    Sketcher.Constraint("Coincident", 2, 2, 3, 1),
    Sketcher.Constraint("Coincident", 3, 2, 0, 1),
    Sketcher.Constraint("Coincident", 4, 2, 5, 1),
    Sketcher.Constraint("Coincident", 5, 2, 6, 1),
    Sketcher.Constraint("Coincident", 6, 2, 7, 1),
    Sketcher.Constraint("Coincident", 7, 2, 4, 1),
    Sketcher.Constraint("Vertical", 0),
    Sketcher.Constraint("Horizontal", 1),
    Sketcher.Constraint("Vertical", 2),
    Sketcher.Constraint("Horizontal", 3),
    Sketcher.Constraint("Vertical", 4),
    Sketcher.Constraint("Horizontal", 5),
    Sketcher.Constraint("Vertical", 6),
    Sketcher.Constraint("Horizontal", 7),
    Sketcher.Constraint("Symmetric", 2, 2, 4, 2, -1, 1),
    Sketcher.Constraint("Symmetric", 0, 2, 6, 2, -1, 1),
    Sketcher.Constraint("Horizontal", 1, 2, 4, 2),
    Sketcher.Constraint("DistanceX", 1, 1, 1, 2, Q("0.23 in")),
    Sketcher.Constraint("DistanceY", 0, 2, 0, 1, 12.5),
    Sketcher.Constraint("DistanceX", -1, 1, 0, 2, 25.5),
])
sketch3.setExpression("Constraints[19]", "Params.sketch3_width")
pad2 = body.newObject("PartDesign::Pad", "Pad001")
pad2.Profile = sketch3
pad2.setExpression("Length", "Params.pad2_length")
pad2.Reversed = True

sketch4 = body.newObject("Sketcher::SketchObject", "Sketch003")
sketch4.AttachmentSupport = (doc.getObject("XY_Plane"), [""])
sketch4.MapMode = "FlatFace"
sketch4.AttachmentOffset = App.Placement(App.Vector(0, 0, 0.23 * 25.4), App.Rotation())
sketch4.addGeometry([
    Part.LineSegment(App.Vector(53.88, 45.76, 0), App.Vector(49.2, 34.38, 0)),
    Part.ArcOfCircle(Part.Circle(App.Vector(49.13, 34.19, 0), App.Vector(0, 0, 1), 0.2), math.radians(68), math.radians(338)),
    Part.LineSegment(App.Vector(49.31, 34.12, 0), App.Vector(54.35, 32.05, 0)),
    Part.ArcOfCircle(Part.Circle(App.Vector(54.53, 31.97, 0), App.Vector(0, 0, 1), 0.2), math.radians(158), math.radians(428)),
    Part.LineSegment(App.Vector(54.61, 32.16, 0), App.Vector(59.28, 43.54, 0)),
    Part.ArcOfCircle(Part.Circle(App.Vector(59.36, 43.72, 0), App.Vector(0, 0, 1), 0.2), math.radians(-112), math.radians(158)),
    Part.LineSegment(App.Vector(59.17, 43.8, 0), App.Vector(54.14, 45.86, 0)),
    Part.ArcOfCircle(Part.Circle(App.Vector(53.95, 45.94, 0), App.Vector(0, 0, 1), 0.2), math.radians(-22), math.radians(248)),
    Part.ArcOfCircle(Part.Circle(App.Vector(44.88, 8.48, 0), App.Vector(0, 0, 1), 0.2), math.radians(158), math.radians(428)),
    Part.LineSegment(App.Vector(44.95, 8.66, 0), App.Vector(49.63, 20.04, 0)),
    Part.ArcOfCircle(Part.Circle(App.Vector(49.7, 20.23, 0), App.Vector(0, 0, 1), 0.2), math.radians(-112), math.radians(158)),
    Part.LineSegment(App.Vector(49.52, 20.3, 0), App.Vector(44.48, 22.37, 0)),
    Part.ArcOfCircle(Part.Circle(App.Vector(44.3, 22.45, 0), App.Vector(0, 0, 1), 0.2), math.radians(-22), math.radians(248)),
    Part.LineSegment(App.Vector(44.22, 22.26, 0), App.Vector(39.55, 10.88, 0)),
    Part.ArcOfCircle(Part.Circle(App.Vector(39.47, 10.7, 0), App.Vector(0, 0, 1), 0.2), math.radians(68), math.radians(338)),
    Part.LineSegment(App.Vector(39.66, 10.62, 0), App.Vector(44.69, 8.55, 0)),
    Part.Circle(App.Vector(49.41, 27.21, 0), App.Vector(0, 0, 1), 1.78),
], False)
sketch4.addConstraint([
    Sketcher.Constraint("Coincident", 0, 2, 1, 1),
    Sketcher.Constraint("Coincident", 1, 2, 2, 1),
    Sketcher.Constraint("Coincident", 2, 2, 3, 1),
    Sketcher.Constraint("Coincident", 3, 2, 4, 1),
    Sketcher.Constraint("Coincident", 4, 2, 5, 1),
    Sketcher.Constraint("Coincident", 5, 2, 6, 1),
    Sketcher.Constraint("Coincident", 6, 2, 7, 1),
    Sketcher.Constraint("Coincident", 7, 2, 0, 1),
    Sketcher.Constraint("Coincident", 8, 2, 9, 1),
    Sketcher.Constraint("Coincident", 9, 2, 10, 1),
    Sketcher.Constraint("Coincident", 10, 2, 11, 1),
    Sketcher.Constraint("Coincident", 11, 2, 12, 1),
    Sketcher.Constraint("Coincident", 12, 2, 13, 1),
    Sketcher.Constraint("Coincident", 13, 2, 14, 1),
    Sketcher.Constraint("Coincident", 14, 2, 15, 1),
    Sketcher.Constraint("Coincident", 15, 2, 8, 1),
    Sketcher.Constraint("Equal", 1, 3),
    Sketcher.Constraint("Equal", 3, 5),
    Sketcher.Constraint("Equal", 5, 7),
    Sketcher.Constraint("Equal", 7, 8),
    Sketcher.Constraint("Equal", 8, 10),
    Sketcher.Constraint("Equal", 10, 12),
    Sketcher.Constraint("Equal", 12, 14),
    Sketcher.Constraint("Perpendicular", 0, 2),
    Sketcher.Constraint("Perpendicular", 2, 4),
    Sketcher.Constraint("Perpendicular", 4, 6),
    Sketcher.Constraint("Perpendicular", 6, 9),
    Sketcher.Constraint("Perpendicular", 9, 11),
    Sketcher.Constraint("Perpendicular", 11, 13),
    Sketcher.Constraint("Perpendicular", 13, 15),
    Sketcher.Constraint("Equal", 0, 4),
    Sketcher.Constraint("Equal", 2, 6),
    Sketcher.Constraint("Equal", 4, 9),
    Sketcher.Constraint("Equal", 6, 11),
    Sketcher.Constraint("Equal", 9, 13),
    Sketcher.Constraint("Equal", 11, 15),
    Sketcher.Constraint("Diameter", 16, Q("0.14 in")),
    Sketcher.Constraint("Distance", 0, Q("0.484375 in")),
    Sketcher.Constraint("DistanceX", -1, 1, 14, 3, Q("1.5541 in")),
    Sketcher.Constraint("Radius", 1, 0.198437),
    Sketcher.Constraint("DistanceY", -1, 1, 5, 2, 43.795802),
    Sketcher.Constraint("DistanceY", 0, 2, 7, 3, 11.563802),
    Sketcher.Constraint("DistanceY", 3, 3, 4, 2, 11.563802),
    Sketcher.Constraint("DistanceY", 8, 2, 10, 3, 11.563802),
    Sketcher.Constraint("DistanceY", 8, 3, 9, 2, 11.563802),
    Sketcher.Constraint("DistanceY", 13, 2, 12, 3, 11.563802),
    Sketcher.Constraint("DistanceX", -1, 1, 10, 3, 49.70386),
    Sketcher.Constraint("DistanceY", -1, 1, 10, 3, 20.225688),
    Sketcher.Constraint("DistanceY", -1, 1, 12, 3, 22.445619),
    Sketcher.Constraint("DistanceY", -1, 1, 16, 3, 27.209331),
    Sketcher.Constraint("DistanceX", -1, 1, 0, 2, 49.20142),
    Sketcher.Constraint("DistanceY", -1, 1, 1, 2, 34.117568),
    Sketcher.Constraint("DistanceX", -1, 1, 4, 2, 59.28033),
    Sketcher.Constraint("DistanceX", -1, 1, 10, 2, 49.520308),
    Sketcher.Constraint("DistanceX", -1, 1, 11, 2, 44.48363),
    Sketcher.Constraint("DistanceY", -1, 1, 14, 2, 10.62286),
    Sketcher.Constraint("DistanceY", 3, 3, 1, 3, 2.219931),
    Sketcher.Constraint("DistanceY", 8, 3, 3, 3, 23.494708),
    Sketcher.Constraint("DistanceX", 16, 3, 3, 3, 5.11486),
])
sketch4.setExpression("Constraints[36]", "Params.sketch4_diameter")
sketch4.setExpression("Constraints[37]", "Params.sketch4_length")
pocket2 = body.newObject("PartDesign::Pocket", "Pocket001")
pocket2.Profile = sketch4
pocket2.Type = "ThroughAll"
doc.recompute()

mirrored = body.newObject("PartDesign::Mirrored", "Mirrored")
mirrored.Originals = [pocket2]
mirrored.MirrorPlane = (doc.getObject("YZ_Plane"), [""])
body.Tip = mirrored

doc.recompute()
